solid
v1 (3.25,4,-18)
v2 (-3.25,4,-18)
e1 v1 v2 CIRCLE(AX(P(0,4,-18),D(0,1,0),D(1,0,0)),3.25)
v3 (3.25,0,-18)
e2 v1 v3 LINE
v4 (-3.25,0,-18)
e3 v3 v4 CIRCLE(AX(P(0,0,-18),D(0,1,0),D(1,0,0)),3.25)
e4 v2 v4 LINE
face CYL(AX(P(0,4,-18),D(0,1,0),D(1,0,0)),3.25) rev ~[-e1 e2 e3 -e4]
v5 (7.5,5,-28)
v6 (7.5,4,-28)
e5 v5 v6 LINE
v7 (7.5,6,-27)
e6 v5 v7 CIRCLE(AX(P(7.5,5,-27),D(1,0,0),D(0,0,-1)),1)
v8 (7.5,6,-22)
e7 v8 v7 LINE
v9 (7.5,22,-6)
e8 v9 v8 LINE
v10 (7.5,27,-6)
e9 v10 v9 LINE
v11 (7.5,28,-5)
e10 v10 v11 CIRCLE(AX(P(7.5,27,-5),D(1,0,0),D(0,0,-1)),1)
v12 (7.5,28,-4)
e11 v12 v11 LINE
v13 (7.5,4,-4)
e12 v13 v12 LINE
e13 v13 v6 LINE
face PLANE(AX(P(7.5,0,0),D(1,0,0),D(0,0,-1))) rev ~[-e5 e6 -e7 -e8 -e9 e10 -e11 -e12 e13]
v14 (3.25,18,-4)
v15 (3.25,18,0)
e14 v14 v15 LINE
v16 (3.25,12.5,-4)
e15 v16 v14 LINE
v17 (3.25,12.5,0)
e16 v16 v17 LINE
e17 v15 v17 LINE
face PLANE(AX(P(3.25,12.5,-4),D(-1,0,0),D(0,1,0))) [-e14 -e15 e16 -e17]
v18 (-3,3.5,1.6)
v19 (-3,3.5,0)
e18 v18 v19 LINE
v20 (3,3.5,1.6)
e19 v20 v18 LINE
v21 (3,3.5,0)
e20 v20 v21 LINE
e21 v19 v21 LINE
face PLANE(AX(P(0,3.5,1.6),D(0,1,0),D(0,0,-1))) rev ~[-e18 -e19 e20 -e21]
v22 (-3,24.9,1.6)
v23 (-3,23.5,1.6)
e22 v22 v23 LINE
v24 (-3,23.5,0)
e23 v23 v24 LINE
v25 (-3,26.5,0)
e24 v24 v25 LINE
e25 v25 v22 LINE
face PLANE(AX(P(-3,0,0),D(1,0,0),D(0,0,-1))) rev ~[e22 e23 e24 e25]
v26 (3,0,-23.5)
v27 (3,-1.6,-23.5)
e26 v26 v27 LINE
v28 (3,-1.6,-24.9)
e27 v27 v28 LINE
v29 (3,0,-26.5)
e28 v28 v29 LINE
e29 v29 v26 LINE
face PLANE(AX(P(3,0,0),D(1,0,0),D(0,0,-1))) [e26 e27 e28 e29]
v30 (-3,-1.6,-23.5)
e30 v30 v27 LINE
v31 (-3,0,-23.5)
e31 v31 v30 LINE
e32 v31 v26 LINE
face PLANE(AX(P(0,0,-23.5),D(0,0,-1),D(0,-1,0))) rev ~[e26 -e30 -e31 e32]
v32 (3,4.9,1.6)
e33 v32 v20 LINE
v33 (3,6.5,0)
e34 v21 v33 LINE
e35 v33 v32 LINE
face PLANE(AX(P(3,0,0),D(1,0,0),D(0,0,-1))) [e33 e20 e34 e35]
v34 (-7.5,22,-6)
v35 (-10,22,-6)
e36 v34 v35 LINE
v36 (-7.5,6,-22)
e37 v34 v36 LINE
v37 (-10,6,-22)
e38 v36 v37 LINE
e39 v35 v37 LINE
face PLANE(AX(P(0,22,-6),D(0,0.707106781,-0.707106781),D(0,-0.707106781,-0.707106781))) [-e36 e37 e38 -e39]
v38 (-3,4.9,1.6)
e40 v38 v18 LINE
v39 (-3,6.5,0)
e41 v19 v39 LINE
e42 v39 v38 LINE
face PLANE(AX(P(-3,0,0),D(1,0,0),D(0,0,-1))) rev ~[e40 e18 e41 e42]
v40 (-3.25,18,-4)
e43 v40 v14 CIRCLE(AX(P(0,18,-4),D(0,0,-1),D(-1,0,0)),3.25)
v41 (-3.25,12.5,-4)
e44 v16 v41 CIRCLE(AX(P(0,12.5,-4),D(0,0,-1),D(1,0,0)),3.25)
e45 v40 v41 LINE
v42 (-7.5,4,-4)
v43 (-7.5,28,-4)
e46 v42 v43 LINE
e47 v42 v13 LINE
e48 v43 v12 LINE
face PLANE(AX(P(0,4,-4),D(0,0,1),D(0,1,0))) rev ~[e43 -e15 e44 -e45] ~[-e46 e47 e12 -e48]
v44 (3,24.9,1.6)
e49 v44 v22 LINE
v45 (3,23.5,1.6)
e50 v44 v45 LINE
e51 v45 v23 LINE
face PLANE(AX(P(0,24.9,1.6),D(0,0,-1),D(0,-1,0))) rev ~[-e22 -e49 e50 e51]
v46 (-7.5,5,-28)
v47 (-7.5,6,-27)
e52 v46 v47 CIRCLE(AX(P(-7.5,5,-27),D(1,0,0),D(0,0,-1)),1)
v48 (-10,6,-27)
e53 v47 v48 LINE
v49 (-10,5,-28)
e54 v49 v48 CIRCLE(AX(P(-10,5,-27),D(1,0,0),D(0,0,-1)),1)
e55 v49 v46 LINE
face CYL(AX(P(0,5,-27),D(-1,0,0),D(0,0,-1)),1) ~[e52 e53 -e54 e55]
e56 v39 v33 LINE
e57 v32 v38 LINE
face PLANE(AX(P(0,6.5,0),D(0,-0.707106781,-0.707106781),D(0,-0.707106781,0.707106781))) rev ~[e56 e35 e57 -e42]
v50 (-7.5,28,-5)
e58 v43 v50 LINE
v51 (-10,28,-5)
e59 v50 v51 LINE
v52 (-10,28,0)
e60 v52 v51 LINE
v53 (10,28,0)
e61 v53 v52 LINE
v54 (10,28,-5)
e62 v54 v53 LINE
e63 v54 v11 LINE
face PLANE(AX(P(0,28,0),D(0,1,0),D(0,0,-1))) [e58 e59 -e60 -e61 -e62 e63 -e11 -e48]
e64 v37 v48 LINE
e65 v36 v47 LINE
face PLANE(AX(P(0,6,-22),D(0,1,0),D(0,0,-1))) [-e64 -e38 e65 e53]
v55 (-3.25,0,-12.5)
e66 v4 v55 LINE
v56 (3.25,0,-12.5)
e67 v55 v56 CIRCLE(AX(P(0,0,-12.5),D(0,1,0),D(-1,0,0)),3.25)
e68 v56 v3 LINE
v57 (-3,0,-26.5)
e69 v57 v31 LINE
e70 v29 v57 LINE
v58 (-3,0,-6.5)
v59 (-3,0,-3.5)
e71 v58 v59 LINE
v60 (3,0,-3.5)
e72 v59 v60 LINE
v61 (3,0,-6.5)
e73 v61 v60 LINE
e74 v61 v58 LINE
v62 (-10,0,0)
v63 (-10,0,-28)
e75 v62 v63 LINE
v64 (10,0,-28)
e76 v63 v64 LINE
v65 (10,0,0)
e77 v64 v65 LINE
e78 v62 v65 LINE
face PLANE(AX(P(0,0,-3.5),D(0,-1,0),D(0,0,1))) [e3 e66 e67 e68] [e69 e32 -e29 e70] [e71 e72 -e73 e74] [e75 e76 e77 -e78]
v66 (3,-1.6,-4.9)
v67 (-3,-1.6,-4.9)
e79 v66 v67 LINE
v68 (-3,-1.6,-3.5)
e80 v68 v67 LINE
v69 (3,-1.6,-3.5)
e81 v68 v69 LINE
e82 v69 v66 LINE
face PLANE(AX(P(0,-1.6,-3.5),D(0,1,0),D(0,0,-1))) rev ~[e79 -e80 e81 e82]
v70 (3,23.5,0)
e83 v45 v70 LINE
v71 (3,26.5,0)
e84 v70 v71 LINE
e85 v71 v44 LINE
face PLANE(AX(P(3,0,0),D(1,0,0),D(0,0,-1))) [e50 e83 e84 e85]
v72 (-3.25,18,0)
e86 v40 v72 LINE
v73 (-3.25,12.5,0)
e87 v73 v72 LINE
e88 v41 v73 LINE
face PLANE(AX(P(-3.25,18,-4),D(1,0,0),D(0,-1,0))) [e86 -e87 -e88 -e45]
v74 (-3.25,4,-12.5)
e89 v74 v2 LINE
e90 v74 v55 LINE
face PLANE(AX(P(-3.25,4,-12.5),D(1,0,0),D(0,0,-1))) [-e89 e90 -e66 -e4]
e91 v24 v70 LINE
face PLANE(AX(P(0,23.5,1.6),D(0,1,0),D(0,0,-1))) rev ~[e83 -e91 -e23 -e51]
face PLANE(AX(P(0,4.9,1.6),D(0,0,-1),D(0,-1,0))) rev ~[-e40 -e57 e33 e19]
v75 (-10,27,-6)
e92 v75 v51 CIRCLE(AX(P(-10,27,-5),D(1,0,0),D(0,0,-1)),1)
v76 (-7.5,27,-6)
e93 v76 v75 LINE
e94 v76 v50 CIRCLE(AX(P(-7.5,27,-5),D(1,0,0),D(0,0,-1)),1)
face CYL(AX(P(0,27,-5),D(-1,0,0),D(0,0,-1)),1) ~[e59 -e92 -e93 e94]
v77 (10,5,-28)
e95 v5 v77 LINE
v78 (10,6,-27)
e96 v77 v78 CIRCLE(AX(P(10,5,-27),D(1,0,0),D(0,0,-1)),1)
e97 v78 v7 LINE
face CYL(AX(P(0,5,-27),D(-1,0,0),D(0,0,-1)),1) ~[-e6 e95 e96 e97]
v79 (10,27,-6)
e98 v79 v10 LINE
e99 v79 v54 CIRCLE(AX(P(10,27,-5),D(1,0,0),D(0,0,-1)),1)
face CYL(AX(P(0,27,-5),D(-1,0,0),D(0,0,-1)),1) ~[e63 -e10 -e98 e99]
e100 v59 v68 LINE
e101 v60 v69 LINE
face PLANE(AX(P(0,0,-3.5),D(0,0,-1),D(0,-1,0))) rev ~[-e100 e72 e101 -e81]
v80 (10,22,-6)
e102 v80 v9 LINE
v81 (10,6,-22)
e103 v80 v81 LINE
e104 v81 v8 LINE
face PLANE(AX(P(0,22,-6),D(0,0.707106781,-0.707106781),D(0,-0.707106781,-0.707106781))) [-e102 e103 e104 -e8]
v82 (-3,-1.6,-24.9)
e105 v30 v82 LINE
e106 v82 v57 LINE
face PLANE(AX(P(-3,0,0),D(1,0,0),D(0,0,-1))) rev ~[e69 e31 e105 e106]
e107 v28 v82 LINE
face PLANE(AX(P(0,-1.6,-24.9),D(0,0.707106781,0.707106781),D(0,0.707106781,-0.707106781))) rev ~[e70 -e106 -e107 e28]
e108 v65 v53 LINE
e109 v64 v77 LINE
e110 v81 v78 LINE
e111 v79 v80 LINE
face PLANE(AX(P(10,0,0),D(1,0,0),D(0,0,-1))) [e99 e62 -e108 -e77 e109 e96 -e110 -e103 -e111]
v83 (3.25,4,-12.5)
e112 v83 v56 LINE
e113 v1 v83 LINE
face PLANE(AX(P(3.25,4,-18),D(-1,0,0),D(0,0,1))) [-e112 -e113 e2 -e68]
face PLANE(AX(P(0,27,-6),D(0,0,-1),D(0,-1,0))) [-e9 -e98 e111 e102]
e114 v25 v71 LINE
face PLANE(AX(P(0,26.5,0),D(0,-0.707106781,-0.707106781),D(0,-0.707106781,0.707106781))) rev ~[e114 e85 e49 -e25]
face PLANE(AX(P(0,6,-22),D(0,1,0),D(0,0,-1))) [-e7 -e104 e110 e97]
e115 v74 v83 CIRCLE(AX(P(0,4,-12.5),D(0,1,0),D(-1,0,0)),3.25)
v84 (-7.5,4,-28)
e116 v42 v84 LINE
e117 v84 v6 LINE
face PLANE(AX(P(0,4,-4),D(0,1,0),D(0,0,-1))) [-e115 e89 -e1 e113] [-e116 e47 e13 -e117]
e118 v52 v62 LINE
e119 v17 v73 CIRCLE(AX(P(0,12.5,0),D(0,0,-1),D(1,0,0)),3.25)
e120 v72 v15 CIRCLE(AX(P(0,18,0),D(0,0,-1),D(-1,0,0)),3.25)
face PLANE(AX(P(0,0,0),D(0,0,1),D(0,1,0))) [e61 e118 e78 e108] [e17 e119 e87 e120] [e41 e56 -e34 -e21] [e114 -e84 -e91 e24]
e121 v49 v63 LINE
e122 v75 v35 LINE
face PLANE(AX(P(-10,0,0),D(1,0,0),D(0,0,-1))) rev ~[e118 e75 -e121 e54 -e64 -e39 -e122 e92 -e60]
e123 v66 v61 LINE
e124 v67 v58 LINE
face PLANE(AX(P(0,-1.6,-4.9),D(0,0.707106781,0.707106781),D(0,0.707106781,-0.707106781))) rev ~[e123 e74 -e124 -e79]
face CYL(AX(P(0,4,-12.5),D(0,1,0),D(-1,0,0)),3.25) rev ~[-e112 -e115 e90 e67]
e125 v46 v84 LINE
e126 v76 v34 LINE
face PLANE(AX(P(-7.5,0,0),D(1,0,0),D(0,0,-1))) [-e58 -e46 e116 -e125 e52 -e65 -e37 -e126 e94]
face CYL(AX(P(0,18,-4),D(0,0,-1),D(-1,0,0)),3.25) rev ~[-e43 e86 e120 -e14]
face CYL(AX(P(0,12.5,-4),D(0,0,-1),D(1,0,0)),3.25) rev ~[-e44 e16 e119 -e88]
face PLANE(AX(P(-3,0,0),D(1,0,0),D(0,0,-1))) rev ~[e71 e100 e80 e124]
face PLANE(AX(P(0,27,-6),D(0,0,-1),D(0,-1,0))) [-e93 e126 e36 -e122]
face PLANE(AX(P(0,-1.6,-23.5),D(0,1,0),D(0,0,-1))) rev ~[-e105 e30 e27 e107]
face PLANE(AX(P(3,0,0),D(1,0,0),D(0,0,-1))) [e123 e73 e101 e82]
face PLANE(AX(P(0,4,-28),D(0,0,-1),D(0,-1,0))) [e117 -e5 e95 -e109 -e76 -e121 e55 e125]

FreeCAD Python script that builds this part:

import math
import FreeCAD as App
import Part
import Sketcher

V = App.Vector
Q = App.Units.Quantity


def add_polygon(sketch, points):
    """Adds a closed chain of lines whose ends are joined by coincident constraints."""
    first, n = sketch.GeometryCount, len(points)
    for a, b in zip(points, points[1:] + points[:1]):
        sketch.addGeometry(Part.LineSegment(App.Vector(*a, 0), App.Vector(*b, 0)), False)
    for i in range(n):
        sketch.addConstraint(Sketcher.Constraint("Coincident", first + i, 2, first + (i + 1) % n, 1))

doc = App.newDocument("Part")
body = doc.addObject("PartDesign::Body", "Body")

sketch1 = body.newObject("Sketcher::SketchObject", "Sketch")
sketch1.AttachmentSupport = (doc.getObject("YZ_Plane"), [""])
sketch1.MapMode = "FlatFace"
sketch1.addGeometry(Part.LineSegment(V(0, 0, 0), V(0, -28, 0)), False)
sketch1.addGeometry(Part.LineSegment(V(0, -28, 0), V(5, -28, 0)), False)
sketch1.addGeometry(Part.ArcOfCircle(Part.Circle(V(5, -27, 0), V(0, 0, 1), 1), math.radians(-90), math.radians(0)), False)
sketch1.addGeometry(Part.LineSegment(V(6, -27, 0), V(6, -22, 0)), False)
sketch1.addGeometry(Part.LineSegment(V(6, -22, 0), V(22, -6, 0)), False)
sketch1.addGeometry(Part.LineSegment(V(22, -6, 0), V(27, -6, 0)), False)
sketch1.addGeometry(Part.ArcOfCircle(Part.Circle(V(27, -5, 0), V(0, 0, 1), 1), math.radians(-90), math.radians(0)), False)
sketch1.addGeometry(Part.LineSegment(V(28, -5, 0), V(28, 0, 0)), False)
sketch1.addGeometry(Part.LineSegment(V(28, 0, 0), V(0, 0, 0)), False)
sketch1.addConstraint(Sketcher.Constraint("Coincident", 0, 2, 1, 1))
sketch1.addConstraint(Sketcher.Constraint("Tangent", 1, 2, 2, 1))
sketch1.addConstraint(Sketcher.Constraint("Tangent", 2, 2, 3, 1))
sketch1.addConstraint(Sketcher.Constraint("Coincident", 3, 2, 4, 1))
sketch1.addConstraint(Sketcher.Constraint("Coincident", 4, 2, 5, 1))
sketch1.addConstraint(Sketcher.Constraint("Tangent", 5, 2, 6, 1))
sketch1.addConstraint(Sketcher.Constraint("Tangent", 6, 2, 7, 1))
sketch1.addConstraint(Sketcher.Constraint("Coincident", 7, 2, 8, 1))
sketch1.addConstraint(Sketcher.Constraint("Coincident", 8, 2, 0, 1))
sketch1.addConstraint(Sketcher.Constraint("Vertical", 0))
sketch1.addConstraint(Sketcher.Constraint("Horizontal", 1))
sketch1.addConstraint(Sketcher.Constraint("Vertical", 3))
sketch1.addConstraint(Sketcher.Constraint("Horizontal", 5))
sketch1.addConstraint(Sketcher.Constraint("Vertical", 7))
sketch1.addConstraint(Sketcher.Constraint("Horizontal", 8))
sketch1.addConstraint(Sketcher.Constraint("Coincident", 8, 2, -1, 1))
sketch1.addConstraint(Sketcher.Constraint("Equal", 2, 6))
sketch1.addConstraint(Sketcher.Constraint("Equal", 1, 5))
sketch1.addConstraint(Sketcher.Constraint("Equal", 8, 0))
sketch1.addConstraint(Sketcher.Constraint("Equal", 5, 3))
sketch1.addConstraint(Sketcher.Constraint("Equal", 3, 7))
sketch1.addConstraint(Sketcher.Constraint("Radius", 2, Q("1 mm")))
sketch1.addConstraint(Sketcher.Constraint("DistanceX", 8, 2, 8, 1, Q("28 mm")))
sketch1.addConstraint(Sketcher.Constraint("DistanceX", -1, 1, 2, 2, Q("6 mm")))
pad1 = body.newObject("PartDesign::Pad", "Pad")
pad1.Profile = sketch1
pad1.Length = 20
pad1.Midplane = True

sketch2 = body.newObject("Sketcher::SketchObject", "Sketch001")
sketch2.AttachmentSupport = (doc.getObject("YZ_Plane"), [""])
sketch2.MapMode = "FlatFace"
sketch2.addGeometry(Part.LineSegment(V(28, -5, 0), V(28, -4, 0)), False)
sketch2.addGeometry(Part.LineSegment(V(28, -4, 0), V(4, -4, 0)), False)
sketch2.addGeometry(Part.LineSegment(V(4, -4, 0), V(4, -28, 0)), False)
sketch2.addGeometry(Part.LineSegment(V(4, -28, 0), V(5, -28, 0)), False)
sketch2.addGeometry(Part.ArcOfCircle(Part.Circle(V(5, -27, 0), V(0, 0, 1), 1), math.radians(-90), math.radians(0)), False)
sketch2.addGeometry(Part.LineSegment(V(6, -27, 0), V(6, -22, 0)), False)
sketch2.addGeometry(Part.LineSegment(V(6, -22, 0), V(22, -6, 0)), False)
sketch2.addGeometry(Part.LineSegment(V(22, -6, 0), V(27, -6, 0)), False)
sketch2.addGeometry(Part.ArcOfCircle(Part.Circle(V(27, -5, 0), V(0, 0, 1), 1), math.radians(-90), math.radians(0)), False)
sketch2.addConstraint(Sketcher.Constraint("Coincident", 0, 2, 1, 1))
sketch2.addConstraint(Sketcher.Constraint("Coincident", 1, 2, 2, 1))
sketch2.addConstraint(Sketcher.Constraint("Coincident", 2, 2, 3, 1))
sketch2.addConstraint(Sketcher.Constraint("Tangent", 3, 2, 4, 1))
sketch2.addConstraint(Sketcher.Constraint("Tangent", 4, 2, 5, 1))
sketch2.addConstraint(Sketcher.Constraint("Coincident", 5, 2, 6, 1))
sketch2.addConstraint(Sketcher.Constraint("Coincident", 6, 2, 7, 1))
sketch2.addConstraint(Sketcher.Constraint("Tangent", 7, 2, 8, 1))
sketch2.addConstraint(Sketcher.Constraint("Tangent", 8, 2, 0, 1))
sketch2.addConstraint(Sketcher.Constraint("Vertical", 0))
sketch2.addConstraint(Sketcher.Constraint("Horizontal", 1))
sketch2.addConstraint(Sketcher.Constraint("Vertical", 2))
sketch2.addConstraint(Sketcher.Constraint("Horizontal", 3))
sketch2.addConstraint(Sketcher.Constraint("Vertical", 5))
sketch2.addConstraint(Sketcher.Constraint("Horizontal", 7))
sketch2.addConstraint(Sketcher.Constraint("Equal", 4, 8))
sketch2.addConstraint(Sketcher.Constraint("Equal", 3, 0))
sketch2.addConstraint(Sketcher.Constraint("Equal", 1, 2))
sketch2.addConstraint(Sketcher.Constraint("Equal", 7, 5))
sketch2.addConstraint(Sketcher.Constraint("Radius", 4, Q("1 mm")))
sketch2.addConstraint(Sketcher.Constraint("DistanceX", 3, 1, 3, 2, Q("1 mm")))
sketch2.addConstraint(Sketcher.Constraint("DistanceX", -1, 1, 0, 2, Q("28 mm")))
sketch2.addConstraint(Sketcher.Constraint("DistanceY", 0, 2, -1, 1, Q("4 mm")))
sketch2.addConstraint(Sketcher.Constraint("DistanceX", -1, 1, 1, 2, Q("4 mm")))
sketch2.addConstraint(Sketcher.Constraint("DistanceY", 5, 2, -1, 1, Q("22 mm")))
pocket1 = body.newObject("PartDesign::Pocket", "Pocket")
pocket1.Profile = sketch2
pocket1.Length = 15
pocket1.Midplane = True

sketch3 = body.newObject("Sketcher::SketchObject", "Sketch002")
sketch3.AttachmentSupport = (doc.getObject("YZ_Plane"), [""])
sketch3.MapMode = "FlatFace"
add_polygon(sketch3, [(3.5, 1.6), (3.5, 0), (6.5, 0), (4.9, 1.6)])
add_polygon(sketch3, [(0, -6.5), (0, -3.5), (-1.6, -3.5), (-1.6, -4.9)])
add_polygon(sketch3, [(23.5, 1.6), (23.5, 0), (26.5, 0), (24.9, 1.6)])
add_polygon(sketch3, [(0, -26.5), (0, -23.5), (-1.6, -23.5), (-1.6, -24.9)])
sketch3.addConstraint(Sketcher.Constraint("Vertical", 0))
sketch3.addConstraint(Sketcher.Constraint("Horizontal", 1))
sketch3.addConstraint(Sketcher.Constraint("Horizontal", 3))
sketch3.addConstraint(Sketcher.Constraint("Vertical", 4))
sketch3.addConstraint(Sketcher.Constraint("Horizontal", 5))
sketch3.addConstraint(Sketcher.Constraint("Vertical", 6))
sketch3.addConstraint(Sketcher.Constraint("Vertical", 8))
sketch3.addConstraint(Sketcher.Constraint("Horizontal", 9))
sketch3.addConstraint(Sketcher.Constraint("Horizontal", 11))
sketch3.addConstraint(Sketcher.Constraint("Vertical", 12))
sketch3.addConstraint(Sketcher.Constraint("Horizontal", 13))
sketch3.addConstraint(Sketcher.Constraint("Vertical", 14))
sketch3.addConstraint(Sketcher.Constraint("PointOnObject", 0, 2, -1))
sketch3.addConstraint(Sketcher.Constraint("PointOnObject", 4, 2, -2))
sketch3.addConstraint(Sketcher.Constraint("PointOnObject", 8, 2, -1))
sketch3.addConstraint(Sketcher.Constraint("PointOnObject", 12, 2, -2))
sketch3.addConstraint(Sketcher.Constraint("Parallel", 2, 7))
sketch3.addConstraint(Sketcher.Constraint("Parallel", 7, 10))
sketch3.addConstraint(Sketcher.Constraint("Parallel", 10, 15))
sketch3.addConstraint(Sketcher.Constraint("Horizontal", 3, 2, 10, 2))
sketch3.addConstraint(Sketcher.Constraint("Vertical", 6, 2, 13, 2))
sketch3.addConstraint(Sketcher.Constraint("Equal", 1, 9))
sketch3.addConstraint(Sketcher.Constraint("Equal", 13, 0))
sketch3.addConstraint(Sketcher.Constraint("Equal", 9, 4))
sketch3.addConstraint(Sketcher.Constraint("Equal", 11, 6))
sketch3.addConstraint(Sketcher.Constraint("Equal", 4, 12))
sketch3.addConstraint(Sketcher.Constraint("DistanceX", 1, 1, 1, 2, Q("3 mm")))
sketch3.addConstraint(Sketcher.Constraint("DistanceX", 5, 2, 5, 1, Q("1.6 mm")))
sketch3.addConstraint(Sketcher.Constraint("DistanceX", 0, 2, 8, 2, Q("20 mm")))
sketch3.addConstraint(Sketcher.Constraint("DistanceY", 12, 2, 4, 2, Q("20 mm")))
sketch3.addConstraint(Sketcher.Constraint("DistanceX", -1, 1, 0, 2, Q("3.5 mm")))
sketch3.addConstraint(Sketcher.Constraint("DistanceY", 4, 2, -1, 1, Q("3.5 mm")))
pad2 = body.newObject("PartDesign::Pad", "Pad001")
pad2.Profile = sketch3
pad2.Length = 6
pad2.Midplane = True

sketch4 = body.newObject("Sketcher::SketchObject", "Sketch003")
sketch4.AttachmentSupport = (doc.getObject("XY_Plane"), [""])
sketch4.MapMode = "FlatFace"
sketch4.AttachmentOffset = App.Placement(V(0, 0, -4), App.Rotation())
sketch4.addGeometry(Part.LineSegment(V(3.2, 18, 0), V(3.2, 12.5, 0)), False)
sketch4.addGeometry(Part.ArcOfCircle(Part.Circle(V(0, 12.5, 0), V(0, 0, 1), 3.2), math.radians(180), math.radians(360)), False)
sketch4.addGeometry(Part.LineSegment(V(-3.2, 12.5, 0), V(-3.2, 18, 0)), False)
sketch4.addGeometry(Part.ArcOfCircle(Part.Circle(V(0, 18, 0), V(0, 0, 1), 3.2), math.radians(0), math.radians(180)), False)
sketch4.addConstraint(Sketcher.Constraint("Tangent", 0, 2, 1, 2))
sketch4.addConstraint(Sketcher.Constraint("Tangent", 1, 1, 2, 1))
sketch4.addConstraint(Sketcher.Constraint("Tangent", 2, 2, 3, 2))
sketch4.addConstraint(Sketcher.Constraint("Tangent", 3, 1, 0, 1))
sketch4.addConstraint(Sketcher.Constraint("Vertical", 0))
sketch4.addConstraint(Sketcher.Constraint("Vertical", 2))
sketch4.addConstraint(Sketcher.Constraint("PointOnObject", 1, 3, -2))
sketch4.addConstraint(Sketcher.Constraint("Radius", 1, Q("3.25 mm")))
sketch4.addConstraint(Sketcher.Constraint("DistanceY", 0, 2, 0, 1, Q("5.5 mm")))
sketch4.addConstraint(Sketcher.Constraint("DistanceY", -1, 1, 1, 3, Q("12.5 mm")))
pocket2 = body.newObject("PartDesign::Pocket", "Pocket001")
pocket2.Profile = sketch4
pocket2.Type = "ThroughAll"
pocket2.Reversed = True

sketch5 = body.newObject("Sketcher::SketchObject", "Sketch004")
sketch5.AttachmentSupport = (doc.getObject("XZ_Plane"), [""])
sketch5.MapMode = "FlatFace"
sketch5.AttachmentOffset = App.Placement(V(0, 0, -4), App.Rotation())
sketch5.addGeometry(Part.LineSegment(V(-3.2, -18, 0), V(-3.2, -12.5, 0)), False)
sketch5.addGeometry(Part.ArcOfCircle(Part.Circle(V(0, -12.5, 0), V(0, 0, 1), 3.2), math.radians(0), math.radians(180)), False)
sketch5.addGeometry(Part.LineSegment(V(3.2, -12.5, 0), V(3.2, -18, 0)), False)
sketch5.addGeometry(Part.ArcOfCircle(Part.Circle(V(0, -18, 0), V(0, 0, 1), 3.2), math.radians(180), math.radians(360)), False)
sketch5.addConstraint(Sketcher.Constraint("Tangent", 0, 2, 1, 2))
sketch5.addConstraint(Sketcher.Constraint("Tangent", 1, 1, 2, 1))
sketch5.addConstraint(Sketcher.Constraint("Tangent", 2, 2, 3, 2))
sketch5.addConstraint(Sketcher.Constraint("Tangent", 3, 1, 0, 1))
sketch5.addConstraint(Sketcher.Constraint("Vertical", 0))
sketch5.addConstraint(Sketcher.Constraint("Vertical", 2))
sketch5.addConstraint(Sketcher.Constraint("PointOnObject", 1, 3, -2))
sketch5.addConstraint(Sketcher.Constraint("Radius", 1, Q("3.25 mm")))
sketch5.addConstraint(Sketcher.Constraint("DistanceY", 0, 1, 0, 2, Q("5.5 mm")))
sketch5.addConstraint(Sketcher.Constraint("DistanceY", 1, 3, -1, 1, Q("12.5 mm")))
pocket3 = body.newObject("PartDesign::Pocket", "Pocket002")
pocket3.Profile = sketch5
pocket3.Type = "ThroughAll"
pocket3.Reversed = True

doc.recompute()
